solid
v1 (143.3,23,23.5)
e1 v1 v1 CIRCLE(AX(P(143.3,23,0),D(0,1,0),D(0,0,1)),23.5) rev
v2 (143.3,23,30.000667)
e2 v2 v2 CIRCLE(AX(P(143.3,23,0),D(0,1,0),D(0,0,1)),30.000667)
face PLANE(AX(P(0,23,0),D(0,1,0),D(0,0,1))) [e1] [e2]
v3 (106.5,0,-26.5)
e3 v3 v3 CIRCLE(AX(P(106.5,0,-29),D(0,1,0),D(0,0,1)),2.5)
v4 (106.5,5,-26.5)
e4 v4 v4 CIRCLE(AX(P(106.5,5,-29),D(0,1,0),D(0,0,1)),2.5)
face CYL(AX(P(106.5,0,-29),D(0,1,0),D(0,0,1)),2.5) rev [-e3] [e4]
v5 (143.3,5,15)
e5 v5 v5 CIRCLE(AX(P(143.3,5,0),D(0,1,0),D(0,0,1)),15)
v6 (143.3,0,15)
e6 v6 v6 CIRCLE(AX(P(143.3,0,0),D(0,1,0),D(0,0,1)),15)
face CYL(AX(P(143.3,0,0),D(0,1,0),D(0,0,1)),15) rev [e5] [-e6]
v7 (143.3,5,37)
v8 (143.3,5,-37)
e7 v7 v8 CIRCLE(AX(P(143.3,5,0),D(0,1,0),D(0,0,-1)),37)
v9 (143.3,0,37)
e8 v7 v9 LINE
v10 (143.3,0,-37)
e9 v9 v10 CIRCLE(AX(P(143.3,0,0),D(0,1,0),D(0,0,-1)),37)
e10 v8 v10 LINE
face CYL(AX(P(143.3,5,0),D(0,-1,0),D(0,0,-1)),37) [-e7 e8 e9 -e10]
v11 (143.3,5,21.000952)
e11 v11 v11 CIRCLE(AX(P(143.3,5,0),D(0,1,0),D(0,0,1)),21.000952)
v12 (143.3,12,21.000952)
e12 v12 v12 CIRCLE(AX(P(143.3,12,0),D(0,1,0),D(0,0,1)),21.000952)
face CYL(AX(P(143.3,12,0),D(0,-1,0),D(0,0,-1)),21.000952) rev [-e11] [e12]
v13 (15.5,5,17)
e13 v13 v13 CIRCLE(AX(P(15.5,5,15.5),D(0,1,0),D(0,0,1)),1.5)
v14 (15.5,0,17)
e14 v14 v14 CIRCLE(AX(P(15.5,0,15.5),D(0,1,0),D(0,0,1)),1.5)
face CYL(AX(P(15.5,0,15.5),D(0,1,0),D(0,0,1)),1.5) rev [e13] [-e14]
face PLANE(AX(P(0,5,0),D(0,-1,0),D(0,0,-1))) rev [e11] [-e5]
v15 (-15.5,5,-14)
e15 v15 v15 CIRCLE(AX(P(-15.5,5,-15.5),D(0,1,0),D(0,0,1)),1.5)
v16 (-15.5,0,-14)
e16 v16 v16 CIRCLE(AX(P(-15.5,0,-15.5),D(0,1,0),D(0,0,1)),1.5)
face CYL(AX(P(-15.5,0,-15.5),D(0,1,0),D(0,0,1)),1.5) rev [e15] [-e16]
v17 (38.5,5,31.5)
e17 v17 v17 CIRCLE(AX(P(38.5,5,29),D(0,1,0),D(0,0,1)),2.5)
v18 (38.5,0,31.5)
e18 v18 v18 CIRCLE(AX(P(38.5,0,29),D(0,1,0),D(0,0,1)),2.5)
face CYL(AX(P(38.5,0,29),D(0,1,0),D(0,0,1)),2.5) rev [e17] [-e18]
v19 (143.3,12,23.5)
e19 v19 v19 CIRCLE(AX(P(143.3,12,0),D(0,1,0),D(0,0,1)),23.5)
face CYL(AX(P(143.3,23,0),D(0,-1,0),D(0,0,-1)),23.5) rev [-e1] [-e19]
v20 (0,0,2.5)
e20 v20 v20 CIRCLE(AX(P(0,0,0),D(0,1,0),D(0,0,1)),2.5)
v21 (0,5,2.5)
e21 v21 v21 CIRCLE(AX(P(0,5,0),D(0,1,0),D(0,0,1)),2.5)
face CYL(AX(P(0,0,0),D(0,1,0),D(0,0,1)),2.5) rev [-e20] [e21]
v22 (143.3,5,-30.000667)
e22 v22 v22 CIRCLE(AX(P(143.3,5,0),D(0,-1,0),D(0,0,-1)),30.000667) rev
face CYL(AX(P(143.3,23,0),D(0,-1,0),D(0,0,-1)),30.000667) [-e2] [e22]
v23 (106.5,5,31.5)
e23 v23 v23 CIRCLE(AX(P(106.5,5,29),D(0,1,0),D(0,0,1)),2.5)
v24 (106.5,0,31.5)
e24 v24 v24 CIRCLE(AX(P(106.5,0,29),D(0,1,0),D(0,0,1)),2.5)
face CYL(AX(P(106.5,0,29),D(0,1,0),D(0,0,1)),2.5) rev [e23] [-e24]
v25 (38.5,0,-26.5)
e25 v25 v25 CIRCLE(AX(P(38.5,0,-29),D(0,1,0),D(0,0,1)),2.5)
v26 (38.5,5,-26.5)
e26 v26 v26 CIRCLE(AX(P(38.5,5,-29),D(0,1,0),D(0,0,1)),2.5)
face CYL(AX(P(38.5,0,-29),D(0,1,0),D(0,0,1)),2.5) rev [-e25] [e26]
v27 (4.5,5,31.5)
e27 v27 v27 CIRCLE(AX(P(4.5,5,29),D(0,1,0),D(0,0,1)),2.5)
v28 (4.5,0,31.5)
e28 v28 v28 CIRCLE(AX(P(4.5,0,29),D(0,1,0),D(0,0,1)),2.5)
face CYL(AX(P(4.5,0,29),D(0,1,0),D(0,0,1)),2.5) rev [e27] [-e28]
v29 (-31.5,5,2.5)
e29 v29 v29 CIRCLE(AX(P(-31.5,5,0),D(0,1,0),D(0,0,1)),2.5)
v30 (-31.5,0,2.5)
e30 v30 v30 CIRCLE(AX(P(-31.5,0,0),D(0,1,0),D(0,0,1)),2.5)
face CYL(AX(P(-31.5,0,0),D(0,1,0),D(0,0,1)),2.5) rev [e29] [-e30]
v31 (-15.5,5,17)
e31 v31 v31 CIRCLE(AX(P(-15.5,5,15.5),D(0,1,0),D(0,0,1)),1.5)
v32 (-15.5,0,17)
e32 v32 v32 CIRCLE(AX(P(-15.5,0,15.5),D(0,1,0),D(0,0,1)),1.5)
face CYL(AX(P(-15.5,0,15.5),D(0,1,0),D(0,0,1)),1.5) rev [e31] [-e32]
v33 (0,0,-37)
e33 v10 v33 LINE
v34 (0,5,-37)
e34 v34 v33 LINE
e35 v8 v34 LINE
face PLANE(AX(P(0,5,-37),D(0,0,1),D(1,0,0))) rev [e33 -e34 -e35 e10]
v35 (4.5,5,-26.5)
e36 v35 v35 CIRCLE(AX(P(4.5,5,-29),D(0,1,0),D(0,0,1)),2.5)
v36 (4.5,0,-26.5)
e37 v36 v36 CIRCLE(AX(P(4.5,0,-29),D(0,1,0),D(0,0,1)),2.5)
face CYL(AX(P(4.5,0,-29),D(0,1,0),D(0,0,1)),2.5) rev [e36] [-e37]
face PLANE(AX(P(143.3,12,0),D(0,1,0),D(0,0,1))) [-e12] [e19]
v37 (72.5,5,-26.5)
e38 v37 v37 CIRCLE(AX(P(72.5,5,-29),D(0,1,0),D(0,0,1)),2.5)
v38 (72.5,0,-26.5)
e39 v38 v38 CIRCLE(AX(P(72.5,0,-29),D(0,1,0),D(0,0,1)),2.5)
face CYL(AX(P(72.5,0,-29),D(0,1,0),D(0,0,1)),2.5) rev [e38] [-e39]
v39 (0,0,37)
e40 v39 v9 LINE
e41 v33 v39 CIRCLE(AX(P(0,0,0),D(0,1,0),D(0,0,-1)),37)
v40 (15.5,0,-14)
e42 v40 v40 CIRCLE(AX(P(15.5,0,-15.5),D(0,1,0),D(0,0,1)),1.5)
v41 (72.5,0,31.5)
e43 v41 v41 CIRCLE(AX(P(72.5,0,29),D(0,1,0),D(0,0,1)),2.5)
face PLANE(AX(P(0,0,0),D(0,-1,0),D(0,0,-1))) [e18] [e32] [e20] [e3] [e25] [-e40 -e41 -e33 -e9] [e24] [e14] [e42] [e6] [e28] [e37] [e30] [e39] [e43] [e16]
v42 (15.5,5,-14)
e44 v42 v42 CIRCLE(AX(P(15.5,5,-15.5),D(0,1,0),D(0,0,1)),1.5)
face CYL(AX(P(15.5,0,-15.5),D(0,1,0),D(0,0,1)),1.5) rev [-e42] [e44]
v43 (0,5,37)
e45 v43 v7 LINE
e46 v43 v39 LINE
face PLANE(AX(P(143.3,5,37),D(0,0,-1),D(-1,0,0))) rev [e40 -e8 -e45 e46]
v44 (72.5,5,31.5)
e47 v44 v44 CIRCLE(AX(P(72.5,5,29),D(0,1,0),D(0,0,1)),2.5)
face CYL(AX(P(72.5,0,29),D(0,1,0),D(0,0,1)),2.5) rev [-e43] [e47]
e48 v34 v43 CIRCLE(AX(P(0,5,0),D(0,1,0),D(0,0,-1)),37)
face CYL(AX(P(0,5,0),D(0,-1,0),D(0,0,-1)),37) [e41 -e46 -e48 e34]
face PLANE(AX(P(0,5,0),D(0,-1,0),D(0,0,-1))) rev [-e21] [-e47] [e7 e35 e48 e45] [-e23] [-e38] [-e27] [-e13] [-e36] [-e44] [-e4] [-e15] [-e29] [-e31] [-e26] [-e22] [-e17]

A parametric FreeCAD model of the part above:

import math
import FreeCAD as App
import Part
import Sketcher
Q = App.Units.Quantity

doc = App.newDocument("Part")
body = doc.addObject("PartDesign::Body", "Body")

# Sketch on XZ plane
sketch1 = body.newObject("Sketcher::SketchObject", "Sketch")
sketch1.AttachmentSupport = (doc.getObject("XZ_Plane"), [""])
sketch1.MapMode = "FlatFace"
sketch1.addGeometry([
    Part.LineSegment(App.Vector(143.3, -37, 0), App.Vector(0, -37, 0)),
    Part.ArcOfCircle(Part.Circle(App.Vector(0, 0, 0), App.Vector(0, 0, 1), 37), math.radians(90), math.radians(270)),
    Part.LineSegment(App.Vector(0, 37, 0), App.Vector(143.3, 37, 0)),
    Part.ArcOfCircle(Part.Circle(App.Vector(143.3, 0, 0), App.Vector(0, 0, 1), 37), math.radians(-90), math.radians(90)),
], False)
sketch1.addConstraint([
    Sketcher.Constraint("Tangent", 0, 2, 1, 2),
    Sketcher.Constraint("Tangent", 1, 1, 2, 1),
    Sketcher.Constraint("Tangent", 2, 2, 3, 2),
    Sketcher.Constraint("Tangent", 3, 1, 0, 1),
    Sketcher.Constraint("Horizontal", 0),
    Sketcher.Constraint("Horizontal", 2),
    Sketcher.Constraint("Coincident", 1, 3, -1, 1),
    Sketcher.Constraint("Radius", 1, Q("37 mm")),
    Sketcher.Constraint("DistanceX", 0, 2, 0, 1, Q("143.3 mm")),
])
pad1 = body.newObject("PartDesign::Pad", "Pad")
pad1.Profile = sketch1
pad1.Length = 5
pad1.Reversed = True

# Sketch on XZ plane
sketch2 = body.newObject("Sketcher::SketchObject", "Sketch001")
sketch2.AttachmentSupport = (doc.getObject("XZ_Plane"), [""])
sketch2.MapMode = "FlatFace"
sketch2.AttachmentOffset = App.Placement(App.Vector(0, 0, -5), App.Rotation())
sketch2.addGeometry([
    Part.Circle(App.Vector(0, 0, 0), App.Vector(0, 0, 1), 2.5),  # 0
    Part.Circle(App.Vector(-15.5, -15.5, 0), App.Vector(0, 0, 1), 1.5),  # 1
    Part.Circle(App.Vector(15.5, -15.5, 0), App.Vector(0, 0, 1), 1.5),  # 2
    Part.Circle(App.Vector(15.5, 15.5, 0), App.Vector(0, 0, 1), 1.5),  # 3
    Part.Circle(App.Vector(-15.5, 15.5, 0), App.Vector(0, 0, 1), 1.5),  # 4
    Part.Circle(App.Vector(143.3, 0, 0), App.Vector(0, 0, 1), 15),  # 5
], False)
sketch2.addConstraint([
    Sketcher.Constraint("Coincident", 0, 3, -1, 1),
    Sketcher.Constraint("Equal", 1, 2),
    Sketcher.Constraint("Equal", 2, 3),
    Sketcher.Constraint("Equal", 3, 4),
    Sketcher.Constraint("Symmetric", 1, 3, 3, 3, -1, 1),
    Sketcher.Constraint("Symmetric", 2, 3, 4, 3, -1, 1),
    Sketcher.Constraint("Symmetric", 1, 3, 2, 3, -2),
    Sketcher.Constraint("PointOnObject", 5, 3, -1),
    Sketcher.Constraint("Diameter", 0, Q("5 mm")),
    Sketcher.Constraint("Diameter", 1, Q("3 mm")),
    Sketcher.Constraint("Diameter", 5, Q("30 mm")),
    Sketcher.Constraint("DistanceX", 1, 3, 2, 3, Q("31 mm")),
    Sketcher.Constraint("DistanceY", 2, 3, 3, 3, Q("31 mm")),
    Sketcher.Constraint("DistanceX", -1, 1, 5, 3, Q("143.3 mm")),
])
pocket1 = body.newObject("PartDesign::Pocket", "Pocket")
pocket1.Profile = sketch2
pocket1.Length = 5
pocket1.Reversed = True

# Sketch on XZ plane
sketch3 = body.newObject("Sketcher::SketchObject", "Sketch002")
sketch3.AttachmentSupport = (doc.getObject("XZ_Plane"), [""])
sketch3.MapMode = "FlatFace"
sketch3.AttachmentOffset = App.Placement(App.Vector(0, 0, -5), App.Rotation())
sketch3.addGeometry([
    Part.Circle(App.Vector(-31.5, 0, 0), App.Vector(0, 0, 1), 2.5),  # 0
    Part.Circle(App.Vector(4.5, 29, 0), App.Vector(0, 0, 1), 2.5),  # 1
    Part.Circle(App.Vector(38.5, 29, 0), App.Vector(0, 0, 1), 2.5),  # 2
    Part.Circle(App.Vector(72.5, 29, 0), App.Vector(0, 0, 1), 2.5),  # 3
    Part.Circle(App.Vector(106.5, 29, 0), App.Vector(0, 0, 1), 2.5),  # 4
    Part.Circle(App.Vector(4.5, -29, 0), App.Vector(0, 0, 1), 2.5),  # 5
    Part.Circle(App.Vector(38.5, -29, 0), App.Vector(0, 0, 1), 2.5),  # 6
    Part.Circle(App.Vector(72.5, -29, 0), App.Vector(0, 0, 1), 2.5),  # 7
    Part.Circle(App.Vector(106.5, -29, 0), App.Vector(0, 0, 1), 2.5),  # 8
], False)
sketch3.addConstraint([
    Sketcher.Constraint("Equal", 0, 1),
    Sketcher.Constraint("Equal", 1, 2),
    Sketcher.Constraint("Equal", 2, 3),
    Sketcher.Constraint("Equal", 3, 4),
    Sketcher.Constraint("Equal", 4, 5),
    Sketcher.Constraint("Equal", 5, 6),
    Sketcher.Constraint("Equal", 6, 7),
    Sketcher.Constraint("Equal", 7, 8),
    Sketcher.Constraint("Symmetric", 1, 3, 5, 3, -1),
    Sketcher.Constraint("Symmetric", 2, 3, 6, 3, -1),
    Sketcher.Constraint("Symmetric", 3, 3, 7, 3, -1),
    Sketcher.Constraint("Symmetric", 4, 3, 8, 3, -1),
    Sketcher.Constraint("PointOnObject", 0, 3, -1),
    Sketcher.Constraint("Horizontal", 1, 3, 2, 3),
    Sketcher.Constraint("Horizontal", 2, 3, 3, 3),
    Sketcher.Constraint("Horizontal", 3, 3, 4, 3),
    Sketcher.Constraint("Diameter", 0, Q("5 mm")),
    Sketcher.Constraint("DistanceY", -1, 1, 1, 3, Q("29 mm")),
    Sketcher.Constraint("DistanceX", 0, 3, 1, 3, Q("36 mm")),
    Sketcher.Constraint("DistanceX", 1, 3, 2, 3, Q("34 mm")),
    Sketcher.Constraint("DistanceX", 2, 3, 3, 3, Q("34 mm")),
    Sketcher.Constraint("DistanceX", 3, 3, 4, 3, Q("34 mm")),
    Sketcher.Constraint("DistanceX", 0, 3, -1, 1, Q("31.5 mm")),
])
pocket2 = body.newObject("PartDesign::Pocket", "Pocket001")
pocket2.Profile = sketch3
pocket2.Length = 5
pocket2.Reversed = True

# Sketch on XZ plane
sketch4 = body.newObject("Sketcher::SketchObject", "Sketch003")
sketch4.AttachmentSupport = (doc.getObject("XZ_Plane"), [""])
sketch4.MapMode = "FlatFace"
sketch4.AttachmentOffset = App.Placement(App.Vector(0, 0, -5), App.Rotation())
sketch4.addGeometry([
    Part.Circle(App.Vector(143.3, 0, 0), App.Vector(0, 0, 1), 23.5),
    Part.Circle(App.Vector(143.3, 0, 0), App.Vector(0, 0, 1), 21.000952),
], False)
sketch4.addConstraint([
    Sketcher.Constraint("Coincident", 1, 3, 0, 3),
    Sketcher.Constraint("PointOnObject", 0, 3, -1),
    Sketcher.Constraint("Diameter", 0, Q("47 mm")),
    Sketcher.Constraint("DistanceX", -1, 1, 0, 3, Q("143.3 mm")),
    Sketcher.Constraint("Diameter", 1, Q("42.001905 mm")),
])
pad2 = body.newObject("PartDesign::Pad", "Pad001")
pad2.Profile = sketch4
pad2.Length = 7
pad2.Reversed = True

# Sketch on XZ plane
sketch5 = body.newObject("Sketcher::SketchObject", "Sketch004")
sketch5.AttachmentSupport = (doc.getObject("XZ_Plane"), [""])
sketch5.MapMode = "FlatFace"
sketch5.AttachmentOffset = App.Placement(App.Vector(0, 0, -5), App.Rotation())
sketch5.addGeometry([
    Part.Circle(App.Vector(143.3, 0, 0), App.Vector(0, 0, 1), 30.000667),
    Part.Circle(App.Vector(143.3, 0, 0), App.Vector(0, 0, 1), 23.5),
], False)
sketch5.addConstraint([
    Sketcher.Constraint("Coincident", 1, 3, 0, 3),
    Sketcher.Constraint("PointOnObject", 0, 3, -1),
    Sketcher.Constraint("Diameter", 1, Q("47 mm")),
    Sketcher.Constraint("DistanceX", -1, 1, 0, 3, Q("143.3 mm")),
    Sketcher.Constraint("Diameter", 0, Q("60.001333 mm")),
])
pad3 = body.newObject("PartDesign::Pad", "Pad002")
pad3.Profile = sketch5
pad3.Length = 18
pad3.Reversed = True

doc.recompute()
